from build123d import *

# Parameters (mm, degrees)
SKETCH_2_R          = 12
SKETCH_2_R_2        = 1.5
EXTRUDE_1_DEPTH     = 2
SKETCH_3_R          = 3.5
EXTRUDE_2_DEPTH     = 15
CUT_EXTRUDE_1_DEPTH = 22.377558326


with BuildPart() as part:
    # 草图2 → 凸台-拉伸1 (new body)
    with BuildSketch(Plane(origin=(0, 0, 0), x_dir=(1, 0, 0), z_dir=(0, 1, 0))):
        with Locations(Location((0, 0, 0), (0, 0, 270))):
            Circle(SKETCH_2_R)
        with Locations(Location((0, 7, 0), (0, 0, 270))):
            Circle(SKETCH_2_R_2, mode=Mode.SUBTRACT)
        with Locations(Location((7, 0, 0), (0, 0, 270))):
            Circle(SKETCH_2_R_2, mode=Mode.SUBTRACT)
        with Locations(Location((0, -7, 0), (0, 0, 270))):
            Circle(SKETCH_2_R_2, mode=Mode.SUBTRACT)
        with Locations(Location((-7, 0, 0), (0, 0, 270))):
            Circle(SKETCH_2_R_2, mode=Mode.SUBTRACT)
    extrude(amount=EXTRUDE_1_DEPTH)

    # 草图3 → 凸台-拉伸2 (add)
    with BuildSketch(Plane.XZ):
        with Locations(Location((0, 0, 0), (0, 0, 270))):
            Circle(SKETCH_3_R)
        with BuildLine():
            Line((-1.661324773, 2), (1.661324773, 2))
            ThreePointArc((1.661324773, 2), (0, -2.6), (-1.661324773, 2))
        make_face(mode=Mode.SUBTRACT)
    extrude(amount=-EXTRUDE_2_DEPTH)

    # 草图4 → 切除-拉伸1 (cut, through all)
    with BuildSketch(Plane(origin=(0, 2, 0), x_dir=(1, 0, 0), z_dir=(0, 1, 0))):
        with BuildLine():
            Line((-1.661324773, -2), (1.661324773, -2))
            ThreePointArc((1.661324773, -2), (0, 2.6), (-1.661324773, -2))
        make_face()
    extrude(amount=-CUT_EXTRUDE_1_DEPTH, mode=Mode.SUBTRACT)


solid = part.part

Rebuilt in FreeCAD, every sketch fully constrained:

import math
import FreeCAD as App
import Part
import Sketcher

V = App.Vector

doc = App.newDocument("Part")
body = doc.addObject("PartDesign::Body", "Body")

sketch1 = doc.addObject("Sketcher::SketchObject", "Sketch")
body.addObject(sketch1)
sketch1.AttachmentSupport = (doc.XZ_Plane, [""])
sketch1.MapMode = "FlatFace"
sketch1.addGeometry([
    Part.Circle(V(0, 0, 0), V(0, 0, 1), 12),
    Part.Circle(V(0, -7, 0), V(0, 0, 1), 1.5),
    Part.Circle(V(-7, 0, 0), V(0, 0, 1), 1.5),
    Part.Circle(V(0, 7, 0), V(0, 0, 1), 1.5),
    Part.Circle(V(7, 0, 0), V(0, 0, 1), 1.5),
], False)
sketch1.addConstraint([
    Sketcher.Constraint("Coincident", 0, 3, -1, 1),
    Sketcher.Constraint("Equal", 1, 2),
    Sketcher.Constraint("Equal", 2, 3),
    Sketcher.Constraint("Equal", 3, 4),
    Sketcher.Constraint("Symmetric", 1, 3, 3, 3, -1, 1),
    Sketcher.Constraint("Symmetric", 2, 3, 4, 3, -1, 1),
    Sketcher.Constraint("PointOnObject", 1, 3, -2),
    Sketcher.Constraint("PointOnObject", 2, 3, -1),
    Sketcher.Constraint("Diameter", 0, 24.0),
    Sketcher.Constraint("Diameter", 1, 3.0),
    Sketcher.Constraint("DistanceY", 1, 3, -1, 1, 7.0),
    Sketcher.Constraint("DistanceX", 2, 3, -1, 1, 7.0),
])
pad1 = doc.addObject("PartDesign::Pad", "Pad")
body.addObject(pad1)
pad1.Profile = sketch1
pad1.Length = 2
pad1.Reversed = True

sketch2 = doc.addObject("Sketcher::SketchObject", "Sketch001")
body.addObject(sketch2)
sketch2.AttachmentSupport = (doc.XZ_Plane, [""])
sketch2.MapMode = "FlatFace"
sketch2.addGeometry([
    Part.Circle(V(0, 0, 0), V(0, 0, 1), 3.5),
    Part.ArcOfCircle(Part.Circle(V(0, 0, 0), V(0, 0, 1), 2.6), math.radians(130), math.radians(410)),
    Part.LineSegment(V(-1.7, 2, 0), V(1.7, 2, 0)),
], False)
sketch2.addConstraint([
    Sketcher.Constraint("Coincident", 1, 1, 2, 1),
    Sketcher.Constraint("Coincident", 2, 2, 1, 2),
    Sketcher.Constraint("Horizontal", 2),
    Sketcher.Constraint("Coincident", 0, 3, -1, 1),
    Sketcher.Constraint("Coincident", 1, 3, -1, 1),
    Sketcher.Constraint("Diameter", 0, 7.0),
    Sketcher.Constraint("Radius", 1, 2.6),
    Sketcher.Constraint("DistanceY", -1, 1, 1, 1, 2.0),
])
pad2 = doc.addObject("PartDesign::Pad", "Pad001")
body.addObject(pad2)
pad2.Profile = sketch2
pad2.Length = 15
pad2.Reversed = True

sketch3 = doc.addObject("Sketcher::SketchObject", "Sketch002")
body.addObject(sketch3)
sketch3.AttachmentSupport = (doc.XZ_Plane, [""])
sketch3.MapMode = "FlatFace"
sketch3.AttachmentOffset = App.Placement(V(0, 0, -2), App.Rotation())
sketch3.addGeometry([
    Part.LineSegment(V(-1.7, 2, 0), V(1.7, 2, 0)),
    Part.ArcOfCircle(Part.Circle(V(0, 0, 0), V(0, 0, 1), 2.6), math.radians(130), math.radians(410)),
], False)
sketch3.addConstraint([
    Sketcher.Constraint("Coincident", 0, 1, 1, 1),
    Sketcher.Constraint("Coincident", 1, 2, 0, 2),
    Sketcher.Constraint("Horizontal", 0),
    Sketcher.Constraint("Coincident", 1, 3, -1, 1),
    Sketcher.Constraint("Radius", 1, 2.6),
    Sketcher.Constraint("DistanceY", -1, 1, 0, 1, 2.0),
])
pocket1 = doc.addObject("PartDesign::Pocket", "Pocket")
body.addObject(pocket1)
pocket1.Profile = sketch3
pocket1.Type = "ThroughAll"
pocket1.Reversed = True

doc.recompute()
